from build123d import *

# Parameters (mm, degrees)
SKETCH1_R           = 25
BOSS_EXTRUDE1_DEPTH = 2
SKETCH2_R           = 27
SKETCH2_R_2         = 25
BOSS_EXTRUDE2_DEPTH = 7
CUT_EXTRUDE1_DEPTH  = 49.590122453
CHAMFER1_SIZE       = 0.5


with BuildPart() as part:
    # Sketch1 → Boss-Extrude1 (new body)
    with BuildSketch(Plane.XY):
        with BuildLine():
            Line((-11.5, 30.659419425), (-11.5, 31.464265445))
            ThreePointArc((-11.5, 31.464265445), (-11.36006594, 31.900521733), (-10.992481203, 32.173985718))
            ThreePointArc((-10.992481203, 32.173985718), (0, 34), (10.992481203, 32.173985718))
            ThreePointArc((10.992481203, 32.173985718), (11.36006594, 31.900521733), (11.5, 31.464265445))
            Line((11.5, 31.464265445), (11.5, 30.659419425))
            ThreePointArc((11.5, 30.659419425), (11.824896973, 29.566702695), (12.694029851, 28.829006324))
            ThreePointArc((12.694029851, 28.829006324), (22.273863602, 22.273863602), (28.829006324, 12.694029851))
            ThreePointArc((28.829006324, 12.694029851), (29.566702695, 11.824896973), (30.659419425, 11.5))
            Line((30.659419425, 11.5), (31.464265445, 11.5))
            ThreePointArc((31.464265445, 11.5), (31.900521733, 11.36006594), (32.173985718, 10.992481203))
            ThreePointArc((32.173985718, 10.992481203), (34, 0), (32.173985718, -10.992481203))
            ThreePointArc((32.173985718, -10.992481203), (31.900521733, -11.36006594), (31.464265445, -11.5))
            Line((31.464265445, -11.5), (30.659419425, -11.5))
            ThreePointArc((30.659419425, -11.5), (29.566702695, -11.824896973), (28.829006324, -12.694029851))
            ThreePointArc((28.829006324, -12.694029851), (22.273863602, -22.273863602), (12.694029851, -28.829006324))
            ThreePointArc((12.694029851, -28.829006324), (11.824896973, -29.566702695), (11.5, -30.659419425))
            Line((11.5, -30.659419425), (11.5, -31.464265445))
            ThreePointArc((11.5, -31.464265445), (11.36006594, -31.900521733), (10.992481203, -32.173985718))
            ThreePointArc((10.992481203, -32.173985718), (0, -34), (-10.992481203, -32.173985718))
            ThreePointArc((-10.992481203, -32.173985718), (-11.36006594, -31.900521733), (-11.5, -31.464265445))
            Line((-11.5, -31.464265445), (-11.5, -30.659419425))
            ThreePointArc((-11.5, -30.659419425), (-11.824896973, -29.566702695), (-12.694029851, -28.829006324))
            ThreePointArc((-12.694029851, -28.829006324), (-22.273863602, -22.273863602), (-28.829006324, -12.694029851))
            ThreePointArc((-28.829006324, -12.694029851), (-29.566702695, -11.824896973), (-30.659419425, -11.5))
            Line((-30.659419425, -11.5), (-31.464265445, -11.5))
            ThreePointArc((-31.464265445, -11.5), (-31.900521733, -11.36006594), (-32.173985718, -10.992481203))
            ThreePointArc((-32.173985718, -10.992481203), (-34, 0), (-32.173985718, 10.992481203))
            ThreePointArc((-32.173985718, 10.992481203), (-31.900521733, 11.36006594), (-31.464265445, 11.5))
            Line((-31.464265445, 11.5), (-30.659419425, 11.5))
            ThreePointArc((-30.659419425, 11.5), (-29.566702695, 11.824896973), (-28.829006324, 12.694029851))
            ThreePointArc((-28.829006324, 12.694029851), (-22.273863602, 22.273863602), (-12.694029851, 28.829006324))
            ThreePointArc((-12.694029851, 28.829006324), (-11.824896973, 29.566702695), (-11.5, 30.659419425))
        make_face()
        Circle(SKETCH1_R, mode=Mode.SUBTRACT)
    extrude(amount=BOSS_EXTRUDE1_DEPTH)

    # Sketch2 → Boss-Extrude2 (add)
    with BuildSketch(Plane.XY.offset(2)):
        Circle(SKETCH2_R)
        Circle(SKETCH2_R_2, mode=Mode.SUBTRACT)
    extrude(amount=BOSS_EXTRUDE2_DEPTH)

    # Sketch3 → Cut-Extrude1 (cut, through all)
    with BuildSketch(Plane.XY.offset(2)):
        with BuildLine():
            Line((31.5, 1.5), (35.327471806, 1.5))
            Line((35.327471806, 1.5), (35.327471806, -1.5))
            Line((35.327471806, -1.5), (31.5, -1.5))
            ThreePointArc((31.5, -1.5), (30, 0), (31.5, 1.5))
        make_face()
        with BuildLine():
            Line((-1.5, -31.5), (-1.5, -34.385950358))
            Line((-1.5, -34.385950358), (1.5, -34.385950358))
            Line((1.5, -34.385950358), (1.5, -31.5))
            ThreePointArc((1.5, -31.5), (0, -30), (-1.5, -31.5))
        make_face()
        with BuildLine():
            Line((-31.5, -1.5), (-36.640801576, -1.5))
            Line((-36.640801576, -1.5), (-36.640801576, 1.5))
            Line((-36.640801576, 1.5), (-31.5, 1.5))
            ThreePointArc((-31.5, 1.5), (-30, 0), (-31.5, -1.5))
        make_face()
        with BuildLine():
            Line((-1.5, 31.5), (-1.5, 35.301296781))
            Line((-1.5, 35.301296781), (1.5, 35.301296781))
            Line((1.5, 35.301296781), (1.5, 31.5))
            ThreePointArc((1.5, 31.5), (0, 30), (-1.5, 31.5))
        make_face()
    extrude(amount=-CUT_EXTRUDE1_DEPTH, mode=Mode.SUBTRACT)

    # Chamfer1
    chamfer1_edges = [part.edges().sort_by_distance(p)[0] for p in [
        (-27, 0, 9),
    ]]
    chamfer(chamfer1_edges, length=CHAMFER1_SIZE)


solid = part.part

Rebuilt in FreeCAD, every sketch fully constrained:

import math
import FreeCAD as App
import Part
import Sketcher
from FreeCAD import Vector
Q = App.Units.Quantity


def edges_at(feature, points):
    """Names of the edges that pass closest to the given points."""
    edges = feature.Shape.Edges
    near = lambda p: min(range(len(edges)), key=lambda i: edges[i].distToShape(Part.Vertex(*p))[0])
    return sorted({f"Edge{near(p) + 1}" for p in points})

doc = App.newDocument("Part")
body = doc.addObject("PartDesign::Body", "Body")

sketch1 = body.newObject("Sketcher::SketchObject", "Sketch")
sketch1.AttachmentSupport = (doc.getObject("XY_Plane"), [""])
sketch1.MapMode = "FlatFace"
sketch1.addGeometry([
    Part.LineSegment(Vector(-11.5, 31.5, 0), Vector(-11.5, 30.7, 0)),
    Part.ArcOfCircle(Part.Circle(Vector(-13.5, 30.7, 0), Vector(0, 0, 1), 2), math.radians(-66), math.radians(0)),
    Part.ArcOfCircle(Part.Circle(Vector(0, 0, 0), Vector(0, 0, 1), 31.5), math.radians(114), math.radians(156)),
    Part.ArcOfCircle(Part.Circle(Vector(-30.7, 13.5, 0), Vector(0, 0, 1), 2), math.radians(-90), math.radians(-24)),
    Part.LineSegment(Vector(-30.7, 11.5, 0), Vector(-31.5, 11.5, 0)),
    Part.ArcOfCircle(Part.Circle(Vector(-31.5, 10.8, 0), Vector(0, 0, 1), 0.8), math.radians(90), math.radians(161)),
    Part.ArcOfCircle(Part.Circle(Vector(0, 0, 0), Vector(0, 0, 1), 34), math.radians(161), math.radians(199)),
    Part.ArcOfCircle(Part.Circle(Vector(-31.5, -10.8, 0), Vector(0, 0, 1), 0.8), math.radians(-161), math.radians(-90)),
    Part.LineSegment(Vector(-31.5, -11.5, 0), Vector(-30.7, -11.5, 0)),
    Part.ArcOfCircle(Part.Circle(Vector(-30.7, -13.5, 0), Vector(0, 0, 1), 2), math.radians(24), math.radians(90)),
    Part.ArcOfCircle(Part.Circle(Vector(0, 0, 0), Vector(0, 0, 1), 31.5), math.radians(-156), math.radians(-114)),
    Part.ArcOfCircle(Part.Circle(Vector(-13.5, -30.7, 0), Vector(0, 0, 1), 2), math.radians(0), math.radians(66)),
    Part.LineSegment(Vector(-11.5, -30.7, 0), Vector(-11.5, -31.5, 0)),
    Part.ArcOfCircle(Part.Circle(Vector(-10.8, -31.5, 0), Vector(0, 0, 1), 0.8), math.radians(180), math.radians(251)),
    Part.ArcOfCircle(Part.Circle(Vector(0, 0, 0), Vector(0, 0, 1), 34), math.radians(-109), math.radians(-71)),
    Part.ArcOfCircle(Part.Circle(Vector(10.8, -31.5, 0), Vector(0, 0, 1), 0.8), math.radians(-71), math.radians(0)),
    Part.LineSegment(Vector(11.5, -31.5, 0), Vector(11.5, -30.7, 0)),
    Part.ArcOfCircle(Part.Circle(Vector(13.5, -30.7, 0), Vector(0, 0, 1), 2), math.radians(114), math.radians(180)),
    Part.ArcOfCircle(Part.Circle(Vector(0, 0, 0), Vector(0, 0, 1), 31.5), math.radians(-66), math.radians(-24)),
    Part.ArcOfCircle(Part.Circle(Vector(30.7, -13.5, 0), Vector(0, 0, 1), 2), math.radians(90), math.radians(156)),
    Part.LineSegment(Vector(30.7, -11.5, 0), Vector(31.5, -11.5, 0)),
    Part.ArcOfCircle(Part.Circle(Vector(31.5, -10.8, 0), Vector(0, 0, 1), 0.8), math.radians(-90), math.radians(-19)),
    Part.ArcOfCircle(Part.Circle(Vector(0, 0, 0), Vector(0, 0, 1), 34), math.radians(-19), math.radians(19)),
    Part.ArcOfCircle(Part.Circle(Vector(31.5, 10.8, 0), Vector(0, 0, 1), 0.8), math.radians(19), math.radians(90)),
    Part.LineSegment(Vector(31.5, 11.5, 0), Vector(30.7, 11.5, 0)),
    Part.ArcOfCircle(Part.Circle(Vector(30.7, 13.5, 0), Vector(0, 0, 1), 2), math.radians(-156), math.radians(-90)),
    Part.ArcOfCircle(Part.Circle(Vector(0, 0, 0), Vector(0, 0, 1), 31.5), math.radians(24), math.radians(66)),
    Part.ArcOfCircle(Part.Circle(Vector(13.5, 30.7, 0), Vector(0, 0, 1), 2), math.radians(180), math.radians(246)),
    Part.LineSegment(Vector(11.5, 30.7, 0), Vector(11.5, 31.5, 0)),
    Part.ArcOfCircle(Part.Circle(Vector(10.8, 31.5, 0), Vector(0, 0, 1), 0.8), math.radians(0), math.radians(71)),
    Part.ArcOfCircle(Part.Circle(Vector(0, 0, 0), Vector(0, 0, 1), 34), math.radians(71), math.radians(109)),
    Part.ArcOfCircle(Part.Circle(Vector(-10.8, 31.5, 0), Vector(0, 0, 1), 0.8), math.radians(109), math.radians(180)),
    Part.Circle(Vector(0, 0, 0), Vector(0, 0, 1), 25),
], False)
sketch1.addConstraint([
    Sketcher.Constraint("Tangent", 0, 2, 1, 2),
    Sketcher.Constraint("Tangent", 1, 1, 2, 1),
    Sketcher.Constraint("Tangent", 2, 2, 3, 2),
    Sketcher.Constraint("Tangent", 3, 1, 4, 1),
    Sketcher.Constraint("Tangent", 4, 2, 5, 1),
    Sketcher.Constraint("Tangent", 5, 2, 6, 1),
    Sketcher.Constraint("Tangent", 6, 2, 7, 1),
    Sketcher.Constraint("Tangent", 7, 2, 8, 1),
    Sketcher.Constraint("Tangent", 8, 2, 9, 2),
    Sketcher.Constraint("Tangent", 9, 1, 10, 1),
    Sketcher.Constraint("Tangent", 10, 2, 11, 2),
    Sketcher.Constraint("Tangent", 11, 1, 12, 1),
    Sketcher.Constraint("Tangent", 12, 2, 13, 1),
    Sketcher.Constraint("Tangent", 13, 2, 14, 1),
    Sketcher.Constraint("Tangent", 14, 2, 15, 1),
    Sketcher.Constraint("Tangent", 15, 2, 16, 1),
    Sketcher.Constraint("Tangent", 16, 2, 17, 2),
    Sketcher.Constraint("Tangent", 17, 1, 18, 1),
    Sketcher.Constraint("Tangent", 18, 2, 19, 2),
    Sketcher.Constraint("Tangent", 19, 1, 20, 1),
    Sketcher.Constraint("Tangent", 20, 2, 21, 1),
    Sketcher.Constraint("Tangent", 21, 2, 22, 1),
    Sketcher.Constraint("Tangent", 22, 2, 23, 1),
    Sketcher.Constraint("Tangent", 23, 2, 24, 1),
    Sketcher.Constraint("Tangent", 24, 2, 25, 2),
    Sketcher.Constraint("Tangent", 25, 1, 26, 1),
    Sketcher.Constraint("Tangent", 26, 2, 27, 2),
    Sketcher.Constraint("Tangent", 27, 1, 28, 1),
    Sketcher.Constraint("Tangent", 28, 2, 29, 1),
    Sketcher.Constraint("Tangent", 29, 2, 30, 1),
    Sketcher.Constraint("Tangent", 30, 2, 31, 1),
    Sketcher.Constraint("Tangent", 31, 2, 0, 1),
    Sketcher.Constraint("Vertical", 0),
    Sketcher.Constraint("Horizontal", 4),
    Sketcher.Constraint("Horizontal", 8),
    Sketcher.Constraint("Vertical", 12),
    Sketcher.Constraint("Vertical", 16),
    Sketcher.Constraint("Horizontal", 20),
    Sketcher.Constraint("Horizontal", 24),
    Sketcher.Constraint("Vertical", 28),
    Sketcher.Constraint("Coincident", 2, 3, -1, 1),
    Sketcher.Constraint("Coincident", 6, 3, -1, 1),
    Sketcher.Constraint("Coincident", 10, 3, -1, 1),
    Sketcher.Constraint("Coincident", 14, 3, -1, 1),
    Sketcher.Constraint("Coincident", 18, 3, -1, 1),
    Sketcher.Constraint("Coincident", 22, 3, -1, 1),
    Sketcher.Constraint("Coincident", 26, 3, -1, 1),
    Sketcher.Constraint("Coincident", 30, 3, -1, 1),
    Sketcher.Constraint("Coincident", 32, 3, -1, 1),
    Sketcher.Constraint("Equal", 1, 3),
    Sketcher.Constraint("Equal", 5, 7),
    Sketcher.Constraint("Equal", 3, 9),
    Sketcher.Constraint("Equal", 2, 10),
    Sketcher.Constraint("Equal", 9, 11),
    Sketcher.Constraint("Equal", 7, 13),
    Sketcher.Constraint("Equal", 6, 14),
    Sketcher.Constraint("Equal", 13, 15),
    Sketcher.Constraint("Equal", 11, 17),
    Sketcher.Constraint("Equal", 10, 18),
    Sketcher.Constraint("Equal", 17, 19),
    Sketcher.Constraint("Equal", 15, 21),
    Sketcher.Constraint("Equal", 14, 22),
    Sketcher.Constraint("Equal", 21, 23),
    Sketcher.Constraint("Equal", 19, 25),
    Sketcher.Constraint("Equal", 18, 26),
    Sketcher.Constraint("Equal", 25, 27),
    Sketcher.Constraint("Equal", 23, 29),
    Sketcher.Constraint("Equal", 22, 30),
    Sketcher.Constraint("Equal", 29, 31),
    Sketcher.Constraint("Horizontal", 13, 3, 15, 3),
    Sketcher.Constraint("Horizontal", 9, 3, 19, 3),
    Sketcher.Constraint("Horizontal", 5, 3, 23, 3),
    Sketcher.Constraint("Horizontal", 1, 3, 27, 3),
    Sketcher.Constraint("Vertical", 5, 3, 7, 3),
    Sketcher.Constraint("Vertical", 1, 3, 11, 3),
    Sketcher.Constraint("Equal", 24, 0),
    Sketcher.Constraint("Diameter", 32, Q("50 mm")),
    Sketcher.Constraint("Radius", 1, Q("2 mm")),
    Sketcher.Constraint("Radius", 6, Q("34 mm")),
    Sketcher.Constraint("Radius", 2, Q("31.5 mm")),
    Sketcher.Constraint("Radius", 5, Q("0.75 mm")),
    Sketcher.Constraint("DistanceY", 9, 3, 3, 3, Q("27 mm")),
])
pad1 = body.newObject("PartDesign::Pad", "Pad")
pad1.Profile = sketch1
pad1.Length = 2

sketch2 = body.newObject("Sketcher::SketchObject", "Sketch001")
sketch2.AttachmentSupport = (doc.getObject("XY_Plane"), [""])
sketch2.MapMode = "FlatFace"
sketch2.AttachmentOffset = App.Placement(Vector(0, 0, 2), App.Rotation())
sketch2.addGeometry([
    Part.Circle(Vector(0, 0, 0), Vector(0, 0, 1), 27),
    Part.Circle(Vector(0, 0, 0), Vector(0, 0, 1), 25),
], False)
sketch2.addConstraint([
    Sketcher.Constraint("Coincident", 0, 3, -1, 1),
    Sketcher.Constraint("Coincident", 1, 3, -1, 1),
    Sketcher.Constraint("Diameter", 0, Q("54 mm")),
    Sketcher.Constraint("Diameter", 1, Q("50 mm")),
])
pad2 = body.newObject("PartDesign::Pad", "Pad001")
pad2.Profile = sketch2
pad2.Length = 7

sketch3 = body.newObject("Sketcher::SketchObject", "Sketch002")
sketch3.AttachmentSupport = (doc.getObject("XY_Plane"), [""])
sketch3.MapMode = "FlatFace"
sketch3.AttachmentOffset = App.Placement(Vector(0, 0, 2), App.Rotation())
sketch3.addGeometry([
    Part.LineSegment(Vector(35.3, 1.5, 0), Vector(31.5, 1.5, 0)),
    Part.ArcOfCircle(Part.Circle(Vector(31.5, 0, 0), Vector(0, 0, 1), 1.5), math.radians(90), math.radians(270)),
    Part.LineSegment(Vector(31.5, -1.5, 0), Vector(35.3, -1.5, 0)),
    Part.LineSegment(Vector(35.3, -1.5, 0), Vector(35.3, 1.5, 0)),
    Part.LineSegment(Vector(-1.5, -31.5, 0), Vector(-1.5, -34.4, 0)),
    Part.LineSegment(Vector(-1.5, -34.4, 0), Vector(1.5, -34.4, 0)),
    Part.LineSegment(Vector(1.5, -34.4, 0), Vector(1.5, -31.5, 0)),
    Part.ArcOfCircle(Part.Circle(Vector(0, -31.5, 0), Vector(0, 0, 1), 1.5), math.radians(0), math.radians(180)),
    Part.LineSegment(Vector(-36.6, -1.5, 0), Vector(-31.5, -1.5, 0)),
    Part.ArcOfCircle(Part.Circle(Vector(-31.5, 0, 0), Vector(0, 0, 1), 1.5), math.radians(-90), math.radians(90)),
    Part.LineSegment(Vector(-31.5, 1.5, 0), Vector(-36.6, 1.5, 0)),
    Part.LineSegment(Vector(-36.6, 1.5, 0), Vector(-36.6, -1.5, 0)),
    Part.LineSegment(Vector(-1.5, 35.3, 0), Vector(-1.5, 31.5, 0)),
    Part.ArcOfCircle(Part.Circle(Vector(0, 31.5, 0), Vector(0, 0, 1), 1.5), math.radians(180), math.radians(360)),
    Part.LineSegment(Vector(1.5, 31.5, 0), Vector(1.5, 35.3, 0)),
    Part.LineSegment(Vector(1.5, 35.3, 0), Vector(-1.5, 35.3, 0)),
], False)
sketch3.addConstraint([
    Sketcher.Constraint("Tangent", 0, 2, 1, 1),
    Sketcher.Constraint("Tangent", 1, 2, 2, 1),
    Sketcher.Constraint("Coincident", 2, 2, 3, 1),
    Sketcher.Constraint("Coincident", 3, 2, 0, 1),
    Sketcher.Constraint("Coincident", 4, 2, 5, 1),
    Sketcher.Constraint("Coincident", 5, 2, 6, 1),
    Sketcher.Constraint("Tangent", 6, 2, 7, 1),
    Sketcher.Constraint("Tangent", 7, 2, 4, 1),
    Sketcher.Constraint("Tangent", 8, 2, 9, 1),
    Sketcher.Constraint("Tangent", 9, 2, 10, 1),
    Sketcher.Constraint("Coincident", 10, 2, 11, 1),
    Sketcher.Constraint("Coincident", 11, 2, 8, 1),
    Sketcher.Constraint("Tangent", 12, 2, 13, 1),
    Sketcher.Constraint("Tangent", 13, 2, 14, 1),
    Sketcher.Constraint("Coincident", 14, 2, 15, 1),
    Sketcher.Constraint("Coincident", 15, 2, 12, 1),
    Sketcher.Constraint("Horizontal", 0),
    Sketcher.Constraint("Horizontal", 2),
    Sketcher.Constraint("Vertical", 3),
    Sketcher.Constraint("Vertical", 4),
    Sketcher.Constraint("Horizontal", 5),
    Sketcher.Constraint("Vertical", 6),
    Sketcher.Constraint("Horizontal", 8),
    Sketcher.Constraint("Horizontal", 10),
    Sketcher.Constraint("Vertical", 11),
    Sketcher.Constraint("Vertical", 12),
    Sketcher.Constraint("Vertical", 14),
    Sketcher.Constraint("Horizontal", 15),
    Sketcher.Constraint("Equal", 1, 7),
    Sketcher.Constraint("Equal", 7, 9),
    Sketcher.Constraint("Equal", 9, 13),
    Sketcher.Constraint("Symmetric", 1, 3, 9, 3, -1, 1),
    Sketcher.Constraint("Symmetric", 7, 3, 13, 3, -1, 1),
    Sketcher.Constraint("PointOnObject", 1, 3, -1),
    Sketcher.Constraint("PointOnObject", 7, 3, -2),
    Sketcher.Constraint("Radius", 1, Q("1.5 mm")),
    Sketcher.Constraint("DistanceX", 9, 3, 1, 3, Q("63 mm")),
    Sketcher.Constraint("DistanceY", 7, 3, 13, 3, Q("63 mm")),
    Sketcher.Constraint("DistanceX", 8, 1, 8, 2, Q("5.140802 mm")),
    Sketcher.Constraint("DistanceX", 0, 2, 0, 1, Q("3.827472 mm")),
    Sketcher.Constraint("DistanceY", 4, 2, 4, 1, Q("2.88595 mm")),
    Sketcher.Constraint("DistanceY", 12, 2, 12, 1, Q("3.801297 mm")),
])
pocket1 = body.newObject("PartDesign::Pocket", "Pocket")
pocket1.Profile = sketch3
pocket1.Type = "ThroughAll"
doc.recompute()

chamfer = body.newObject("PartDesign::Chamfer", "Chamfer")
chamfer.Base = (pocket1, edges_at(pocket1, [(-27, 0, 9)]))
chamfer.Size = 0.5

doc.recompute()
